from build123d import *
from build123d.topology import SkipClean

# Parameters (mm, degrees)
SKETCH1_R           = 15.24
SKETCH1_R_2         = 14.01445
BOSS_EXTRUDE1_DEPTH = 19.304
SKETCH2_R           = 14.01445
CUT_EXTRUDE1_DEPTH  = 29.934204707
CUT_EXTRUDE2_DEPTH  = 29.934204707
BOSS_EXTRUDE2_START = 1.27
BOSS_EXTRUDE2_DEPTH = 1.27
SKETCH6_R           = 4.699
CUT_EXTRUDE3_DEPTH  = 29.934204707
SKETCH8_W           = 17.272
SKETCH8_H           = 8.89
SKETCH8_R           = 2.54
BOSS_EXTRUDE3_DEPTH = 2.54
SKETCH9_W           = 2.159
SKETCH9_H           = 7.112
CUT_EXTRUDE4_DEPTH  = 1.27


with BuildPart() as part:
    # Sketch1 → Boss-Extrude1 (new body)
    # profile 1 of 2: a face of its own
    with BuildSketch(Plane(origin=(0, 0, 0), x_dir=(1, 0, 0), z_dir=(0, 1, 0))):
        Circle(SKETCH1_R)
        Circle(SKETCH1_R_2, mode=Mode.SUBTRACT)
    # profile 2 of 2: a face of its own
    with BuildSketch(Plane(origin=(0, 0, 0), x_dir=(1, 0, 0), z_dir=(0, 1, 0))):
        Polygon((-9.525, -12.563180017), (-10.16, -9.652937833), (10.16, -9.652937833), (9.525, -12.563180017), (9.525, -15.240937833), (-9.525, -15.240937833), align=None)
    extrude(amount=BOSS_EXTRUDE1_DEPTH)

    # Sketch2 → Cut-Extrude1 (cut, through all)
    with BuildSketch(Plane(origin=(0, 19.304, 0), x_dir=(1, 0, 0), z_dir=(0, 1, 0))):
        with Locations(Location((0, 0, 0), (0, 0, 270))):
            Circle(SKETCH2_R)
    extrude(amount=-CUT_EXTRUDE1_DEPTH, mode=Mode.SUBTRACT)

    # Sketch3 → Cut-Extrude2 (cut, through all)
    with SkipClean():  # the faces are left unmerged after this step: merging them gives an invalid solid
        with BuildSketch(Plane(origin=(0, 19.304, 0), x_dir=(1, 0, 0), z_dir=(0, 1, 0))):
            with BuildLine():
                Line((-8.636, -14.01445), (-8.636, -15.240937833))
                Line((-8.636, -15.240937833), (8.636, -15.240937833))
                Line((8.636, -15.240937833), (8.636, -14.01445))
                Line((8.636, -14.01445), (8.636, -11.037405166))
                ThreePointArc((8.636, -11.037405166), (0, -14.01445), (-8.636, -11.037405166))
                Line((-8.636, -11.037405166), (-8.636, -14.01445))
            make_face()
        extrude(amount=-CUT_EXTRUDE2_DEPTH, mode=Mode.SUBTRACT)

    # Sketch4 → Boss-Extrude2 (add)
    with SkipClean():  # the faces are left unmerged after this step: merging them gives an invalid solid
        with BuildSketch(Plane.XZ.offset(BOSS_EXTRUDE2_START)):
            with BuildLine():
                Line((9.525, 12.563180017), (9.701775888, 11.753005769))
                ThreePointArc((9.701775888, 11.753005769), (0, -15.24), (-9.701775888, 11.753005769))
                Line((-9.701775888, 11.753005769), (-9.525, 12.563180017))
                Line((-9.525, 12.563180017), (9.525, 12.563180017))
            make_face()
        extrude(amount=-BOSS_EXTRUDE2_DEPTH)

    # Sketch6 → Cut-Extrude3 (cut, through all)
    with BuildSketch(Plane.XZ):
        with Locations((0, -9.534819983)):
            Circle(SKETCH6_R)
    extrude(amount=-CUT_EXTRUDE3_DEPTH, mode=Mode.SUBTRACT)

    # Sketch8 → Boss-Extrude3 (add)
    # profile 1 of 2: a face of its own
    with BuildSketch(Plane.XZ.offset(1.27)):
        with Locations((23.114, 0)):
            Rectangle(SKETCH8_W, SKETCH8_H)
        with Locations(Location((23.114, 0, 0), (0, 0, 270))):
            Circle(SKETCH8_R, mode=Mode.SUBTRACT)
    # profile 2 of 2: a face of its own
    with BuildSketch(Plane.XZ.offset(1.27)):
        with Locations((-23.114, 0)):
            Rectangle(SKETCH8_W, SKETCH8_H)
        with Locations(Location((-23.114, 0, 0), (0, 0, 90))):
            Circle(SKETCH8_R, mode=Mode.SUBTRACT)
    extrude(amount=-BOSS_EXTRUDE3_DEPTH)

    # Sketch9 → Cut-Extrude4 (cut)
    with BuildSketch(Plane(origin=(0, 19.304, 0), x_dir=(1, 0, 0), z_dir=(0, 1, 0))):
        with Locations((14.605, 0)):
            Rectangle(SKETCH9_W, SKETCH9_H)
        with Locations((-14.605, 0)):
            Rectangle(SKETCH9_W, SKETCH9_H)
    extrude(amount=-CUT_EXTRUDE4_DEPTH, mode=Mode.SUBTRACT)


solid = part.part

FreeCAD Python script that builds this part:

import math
import FreeCAD as App
import Part
import Sketcher

V = App.Vector
Q = App.Units.Quantity


def add_polygon(sketch, points):
    """Adds a closed chain of lines whose ends are joined by coincident constraints."""
    first, n = sketch.GeometryCount, len(points)
    for a, b in zip(points, points[1:] + points[:1]):
        sketch.addGeometry(Part.LineSegment(App.Vector(*a, 0), App.Vector(*b, 0)), False)
    for i in range(n):
        sketch.addConstraint(Sketcher.Constraint("Coincident", first + i, 2, first + (i + 1) % n, 1))

doc = App.newDocument("Part")
body = doc.addObject("PartDesign::Body", "Body")

# Sketch on XZ plane
sketch1 = body.newObject("Sketcher::SketchObject", "Sketch")
sketch1.AttachmentSupport = (doc.getObject("XZ_Plane"), [""])
sketch1.MapMode = "FlatFace"
sketch1.addGeometry([
    Part.ArcOfCircle(Part.Circle(V(0, 0, 0), V(0, 0, 1), 15.2), math.radians(130), math.radians(410)),  # 0
    Part.LineSegment(V(-9.7, 11.8, 0), V(-9.5, 12.6, 0)),  # 1
    Part.LineSegment(V(-9.5, 12.6, 0), V(-9.5, 15.2, 0)),  # 2
    Part.LineSegment(V(-9.5, 15.2, 0), V(9.5, 15.2, 0)),  # 3
    Part.LineSegment(V(9.5, 15.2, 0), V(9.5, 12.6, 0)),  # 4
    Part.LineSegment(V(9.5, 12.6, 0), V(9.7, 11.8, 0)),  # 5
    Part.LineSegment(V(10.2, 9.7, 0), V(-10.2, 9.7, 0)),  # 6
    Part.ArcOfCircle(Part.Circle(V(0, 0, 0), V(0, 0, 1), 14), math.radians(136), math.radians(404)),  # 7
], False)
sketch1.addConstraint([
    Sketcher.Constraint("Coincident", 0, 1, 1, 1),
    Sketcher.Constraint("Coincident", 1, 2, 2, 1),
    Sketcher.Constraint("Coincident", 2, 2, 3, 1),
    Sketcher.Constraint("Coincident", 3, 2, 4, 1),
    Sketcher.Constraint("Coincident", 4, 2, 5, 1),
    Sketcher.Constraint("Coincident", 5, 2, 0, 2),
    Sketcher.Constraint("Coincident", 6, 1, 7, 2),
    Sketcher.Constraint("Coincident", 7, 1, 6, 2),
    Sketcher.Constraint("Vertical", 2),
    Sketcher.Constraint("Horizontal", 3),
    Sketcher.Constraint("Vertical", 4),
    Sketcher.Constraint("Horizontal", 6),
    Sketcher.Constraint("Coincident", 0, 3, -1, 1),
    Sketcher.Constraint("Coincident", 7, 3, -1, 1),
    Sketcher.Constraint("Symmetric", 1, 2, 4, 2, -2),
    Sketcher.Constraint("Horizontal", 0, 1, 5, 2),
    Sketcher.Constraint("Radius", 0, Q("0.6 in")),
    Sketcher.Constraint("DistanceX", 6, 2, 6, 1, Q("0.8 in")),
    Sketcher.Constraint("DistanceX", 3, 1, 3, 2, Q("0.75 in")),
    Sketcher.Constraint("DistanceY", 6, 1, 3, 2, Q("0.22 in")),
    Sketcher.Constraint("Radius", 7, 14.01445),
    Sketcher.Constraint("DistanceY", 2, 1, 2, 2, 2.677758),
    Sketcher.Constraint("Distance", 1, 0.829236),
])
pad1 = body.newObject("PartDesign::Pad", "Pad")
pad1.Profile = sketch1
pad1.Length = Q("0.76 in")
pad1.Reversed = True

# Sketch on XZ plane
sketch2 = body.newObject("Sketcher::SketchObject", "Sketch001")
sketch2.AttachmentSupport = (doc.getObject("XZ_Plane"), [""])
sketch2.MapMode = "FlatFace"
sketch2.AttachmentOffset = App.Placement(V(0, 0, -0.76 * 25.4), App.Rotation())
sketch2.addGeometry(Part.Circle(V(0, 0, 0), V(0, 0, 1), 14), False)
sketch2.addConstraint([
    Sketcher.Constraint("Coincident", 0, 3, -1, 1),
    Sketcher.Constraint("Diameter", 0, Q("1.1035 in")),
])
pocket1 = body.newObject("PartDesign::Pocket", "Pocket")
pocket1.Profile = sketch2
pocket1.Type = "ThroughAll"
pocket1.Reversed = True

# Sketch on XZ plane
sketch3 = body.newObject("Sketcher::SketchObject", "Sketch002")
sketch3.AttachmentSupport = (doc.getObject("XZ_Plane"), [""])
sketch3.MapMode = "FlatFace"
sketch3.AttachmentOffset = App.Placement(V(0, 0, -0.76 * 25.4), App.Rotation())
sketch3.addGeometry([
    Part.LineSegment(V(-8.6, 15.2, 0), V(8.6, 15.2, 0)),
    Part.LineSegment(V(8.6, 15.2, 0), V(8.6, 11, 0)),
    Part.ArcOfCircle(Part.Circle(V(0, 0, 0), V(0, 0, 1), 14), math.radians(52), math.radians(128)),
    Part.LineSegment(V(-8.6, 11, 0), V(-8.6, 15.2, 0)),
], False)
sketch3.addConstraint([
    Sketcher.Constraint("Coincident", 0, 2, 1, 1),
    Sketcher.Constraint("Coincident", 1, 2, 2, 1),
    Sketcher.Constraint("Coincident", 2, 2, 3, 1),
    Sketcher.Constraint("Coincident", 3, 2, 0, 1),
    Sketcher.Constraint("Horizontal", 0),
    Sketcher.Constraint("Vertical", 1),
    Sketcher.Constraint("Vertical", 3),
    Sketcher.Constraint("Coincident", 2, 3, -1, 1),
    Sketcher.Constraint("Horizontal", 1, 2, 2, 2),
    Sketcher.Constraint("DistanceX", 0, 1, 0, 2, Q("0.68 in")),
    Sketcher.Constraint("Radius", 2, 14.01445),
    Sketcher.Constraint("DistanceY", 1, 2, 1, 1, 4.203533),
])
pocket2 = body.newObject("PartDesign::Pocket", "Pocket001")
pocket2.Profile = sketch3
pocket2.Type = "ThroughAll"
pocket2.Reversed = True

# Sketch on XZ plane
sketch4 = body.newObject("Sketcher::SketchObject", "Sketch003")
sketch4.AttachmentSupport = (doc.getObject("XZ_Plane"), [""])
sketch4.MapMode = "FlatFace"
sketch4.AttachmentOffset = App.Placement(V(0, 0, 0.05 * 25.4), App.Rotation())
sketch4.addGeometry([
    Part.LineSegment(V(9.7, 11.8, 0), V(9.5, 12.6, 0)),
    Part.LineSegment(V(9.5, 12.6, 0), V(-9.5, 12.6, 0)),
    Part.LineSegment(V(-9.5, 12.6, 0), V(-9.7, 11.8, 0)),
    Part.ArcOfCircle(Part.Circle(V(0, 0, 0), V(0, 0, 1), 15.2), math.radians(130), math.radians(410)),
], False)
sketch4.addConstraint([
    Sketcher.Constraint("Coincident", 0, 2, 1, 1),
    Sketcher.Constraint("Coincident", 1, 2, 2, 1),
    Sketcher.Constraint("Coincident", 2, 2, 3, 1),
    Sketcher.Constraint("Coincident", 3, 2, 0, 1),
    Sketcher.Constraint("Horizontal", 1),
    Sketcher.Constraint("Coincident", 3, 3, -1, 1),
    Sketcher.Constraint("Horizontal", 2, 2, 3, 2),
    Sketcher.Constraint("Equal", 0, 2),
    Sketcher.Constraint("Radius", 3, Q("0.6 in")),
    Sketcher.Constraint("DistanceX", 1, 2, 1, 1, Q("0.75 in")),
    Sketcher.Constraint("DistanceY", -1, 1, 0, 2, 12.56318),
    Sketcher.Constraint("DistanceX", 2, 2, 3, 2, 19.403552),
])
pad2 = body.newObject("PartDesign::Pad", "Pad001")
pad2.Profile = sketch4
pad2.Length = Q("0.05 in")
pad2.Reversed = True

# Sketch on XZ plane
sketch5 = body.newObject("Sketcher::SketchObject", "Sketch004")
sketch5.AttachmentSupport = (doc.getObject("XZ_Plane"), [""])
sketch5.MapMode = "FlatFace"
sketch5.addGeometry(Part.Circle(V(0, -9.5, 0), V(0, 0, 1), 4.7), False)
sketch5.addConstraint([
    Sketcher.Constraint("PointOnObject", 0, 3, -2),
    Sketcher.Constraint("Diameter", 0, Q("0.37 in")),
    Sketcher.Constraint("DistanceY", 0, 3, -1, 1, 9.53482),
])
pocket3 = body.newObject("PartDesign::Pocket", "Pocket002")
pocket3.Profile = sketch5
pocket3.Type = "ThroughAll"

# Sketch on XZ plane
sketch6 = body.newObject("Sketcher::SketchObject", "Sketch005")
sketch6.AttachmentSupport = (doc.getObject("XZ_Plane"), [""])
sketch6.MapMode = "FlatFace"
sketch6.AttachmentOffset = App.Placement(V(0, 0, 0.05 * 25.4), App.Rotation())
add_polygon(sketch6, [(14.5, 4.4), (14.5, -4.4), (31.8, -4.4), (31.8, 4.4)])  # lines 0-3
sketch6.addGeometry(Part.Circle(V(23.1, 0, 0), V(0, 0, 1), 2.5), False)  # 4
add_polygon(sketch6, [(-31.8, 4.4), (-31.8, -4.4), (-14.5, -4.4), (-14.5, 4.4)])  # lines 5-8
sketch6.addGeometry(Part.Circle(V(-23.1, 0, 0), V(0, 0, 1), 2.5), False)  # 9
sketch6.addConstraint([
    Sketcher.Constraint("Vertical", 0),
    Sketcher.Constraint("Horizontal", 1),
    Sketcher.Constraint("Vertical", 2),
    Sketcher.Constraint("Horizontal", 3),
    Sketcher.Constraint("Vertical", 5),
    Sketcher.Constraint("Horizontal", 6),
    Sketcher.Constraint("Vertical", 7),
    Sketcher.Constraint("Horizontal", 8),
    Sketcher.Constraint("Equal", 4, 9),
    Sketcher.Constraint("Symmetric", 4, 3, 9, 3, -1, 1),
    Sketcher.Constraint("Symmetric", 2, 2, 5, 2, -1, 1),
    Sketcher.Constraint("Symmetric", 0, 2, 7, 2, -1, 1),
    Sketcher.Constraint("PointOnObject", 4, 3, -1),
    Sketcher.Constraint("Horizontal", 1, 2, 5, 2),
    Sketcher.Constraint("Diameter", 4, Q("0.2 in")),
    Sketcher.Constraint("DistanceX", 1, 1, 1, 2, Q("0.68 in")),
    Sketcher.Constraint("DistanceY", 0, 2, 0, 1, Q("0.35 in")),
    Sketcher.Constraint("DistanceX", 5, 2, 1, 2, Q("2.5 in")),
    Sketcher.Constraint("DistanceX", -1, 1, 4, 3, Q("0.91 in")),
])
pad3 = body.newObject("PartDesign::Pad", "Pad002")
pad3.Profile = sketch6
pad3.Length = Q("0.1 in")
pad3.Reversed = True

# Sketch on XZ plane
sketch7 = body.newObject("Sketcher::SketchObject", "Sketch006")
sketch7.AttachmentSupport = (doc.getObject("XZ_Plane"), [""])
sketch7.MapMode = "FlatFace"
sketch7.AttachmentOffset = App.Placement(V(0, 0, -0.76 * 25.4), App.Rotation())
add_polygon(sketch7, [(13.5, -3.6), (13.5, 3.6), (15.7, 3.6), (15.7, -3.6)])  # lines 0-3
add_polygon(sketch7, [(-15.7, -3.6), (-15.7, 3.6), (-13.5, 3.6), (-13.5, -3.6)])  # lines 4-7
sketch7.addConstraint([
    Sketcher.Constraint("Vertical", 0),
    Sketcher.Constraint("Horizontal", 1),
    Sketcher.Constraint("Vertical", 2),
    Sketcher.Constraint("Horizontal", 3),
    Sketcher.Constraint("Vertical", 4),
    Sketcher.Constraint("Horizontal", 5),
    Sketcher.Constraint("Vertical", 6),
    Sketcher.Constraint("Horizontal", 7),
    Sketcher.Constraint("Symmetric", 2, 2, 4, 2, -1, 1),
    Sketcher.Constraint("Symmetric", 0, 2, 6, 2, -1, 1),
    Sketcher.Constraint("Horizontal", 1, 2, 4, 2),
    Sketcher.Constraint("DistanceY", 0, 1, 0, 2, Q("0.28 in")),
    Sketcher.Constraint("DistanceX", 1, 1, 1, 2, Q("0.085 in")),
    Sketcher.Constraint("DistanceX", 4, 2, 0, 2, Q("1.15 in")),
])
pocket4 = body.newObject("PartDesign::Pocket", "Pocket003")
pocket4.Profile = sketch7
pocket4.Length = Q("0.05 in")
pocket4.Reversed = True

doc.recompute()
